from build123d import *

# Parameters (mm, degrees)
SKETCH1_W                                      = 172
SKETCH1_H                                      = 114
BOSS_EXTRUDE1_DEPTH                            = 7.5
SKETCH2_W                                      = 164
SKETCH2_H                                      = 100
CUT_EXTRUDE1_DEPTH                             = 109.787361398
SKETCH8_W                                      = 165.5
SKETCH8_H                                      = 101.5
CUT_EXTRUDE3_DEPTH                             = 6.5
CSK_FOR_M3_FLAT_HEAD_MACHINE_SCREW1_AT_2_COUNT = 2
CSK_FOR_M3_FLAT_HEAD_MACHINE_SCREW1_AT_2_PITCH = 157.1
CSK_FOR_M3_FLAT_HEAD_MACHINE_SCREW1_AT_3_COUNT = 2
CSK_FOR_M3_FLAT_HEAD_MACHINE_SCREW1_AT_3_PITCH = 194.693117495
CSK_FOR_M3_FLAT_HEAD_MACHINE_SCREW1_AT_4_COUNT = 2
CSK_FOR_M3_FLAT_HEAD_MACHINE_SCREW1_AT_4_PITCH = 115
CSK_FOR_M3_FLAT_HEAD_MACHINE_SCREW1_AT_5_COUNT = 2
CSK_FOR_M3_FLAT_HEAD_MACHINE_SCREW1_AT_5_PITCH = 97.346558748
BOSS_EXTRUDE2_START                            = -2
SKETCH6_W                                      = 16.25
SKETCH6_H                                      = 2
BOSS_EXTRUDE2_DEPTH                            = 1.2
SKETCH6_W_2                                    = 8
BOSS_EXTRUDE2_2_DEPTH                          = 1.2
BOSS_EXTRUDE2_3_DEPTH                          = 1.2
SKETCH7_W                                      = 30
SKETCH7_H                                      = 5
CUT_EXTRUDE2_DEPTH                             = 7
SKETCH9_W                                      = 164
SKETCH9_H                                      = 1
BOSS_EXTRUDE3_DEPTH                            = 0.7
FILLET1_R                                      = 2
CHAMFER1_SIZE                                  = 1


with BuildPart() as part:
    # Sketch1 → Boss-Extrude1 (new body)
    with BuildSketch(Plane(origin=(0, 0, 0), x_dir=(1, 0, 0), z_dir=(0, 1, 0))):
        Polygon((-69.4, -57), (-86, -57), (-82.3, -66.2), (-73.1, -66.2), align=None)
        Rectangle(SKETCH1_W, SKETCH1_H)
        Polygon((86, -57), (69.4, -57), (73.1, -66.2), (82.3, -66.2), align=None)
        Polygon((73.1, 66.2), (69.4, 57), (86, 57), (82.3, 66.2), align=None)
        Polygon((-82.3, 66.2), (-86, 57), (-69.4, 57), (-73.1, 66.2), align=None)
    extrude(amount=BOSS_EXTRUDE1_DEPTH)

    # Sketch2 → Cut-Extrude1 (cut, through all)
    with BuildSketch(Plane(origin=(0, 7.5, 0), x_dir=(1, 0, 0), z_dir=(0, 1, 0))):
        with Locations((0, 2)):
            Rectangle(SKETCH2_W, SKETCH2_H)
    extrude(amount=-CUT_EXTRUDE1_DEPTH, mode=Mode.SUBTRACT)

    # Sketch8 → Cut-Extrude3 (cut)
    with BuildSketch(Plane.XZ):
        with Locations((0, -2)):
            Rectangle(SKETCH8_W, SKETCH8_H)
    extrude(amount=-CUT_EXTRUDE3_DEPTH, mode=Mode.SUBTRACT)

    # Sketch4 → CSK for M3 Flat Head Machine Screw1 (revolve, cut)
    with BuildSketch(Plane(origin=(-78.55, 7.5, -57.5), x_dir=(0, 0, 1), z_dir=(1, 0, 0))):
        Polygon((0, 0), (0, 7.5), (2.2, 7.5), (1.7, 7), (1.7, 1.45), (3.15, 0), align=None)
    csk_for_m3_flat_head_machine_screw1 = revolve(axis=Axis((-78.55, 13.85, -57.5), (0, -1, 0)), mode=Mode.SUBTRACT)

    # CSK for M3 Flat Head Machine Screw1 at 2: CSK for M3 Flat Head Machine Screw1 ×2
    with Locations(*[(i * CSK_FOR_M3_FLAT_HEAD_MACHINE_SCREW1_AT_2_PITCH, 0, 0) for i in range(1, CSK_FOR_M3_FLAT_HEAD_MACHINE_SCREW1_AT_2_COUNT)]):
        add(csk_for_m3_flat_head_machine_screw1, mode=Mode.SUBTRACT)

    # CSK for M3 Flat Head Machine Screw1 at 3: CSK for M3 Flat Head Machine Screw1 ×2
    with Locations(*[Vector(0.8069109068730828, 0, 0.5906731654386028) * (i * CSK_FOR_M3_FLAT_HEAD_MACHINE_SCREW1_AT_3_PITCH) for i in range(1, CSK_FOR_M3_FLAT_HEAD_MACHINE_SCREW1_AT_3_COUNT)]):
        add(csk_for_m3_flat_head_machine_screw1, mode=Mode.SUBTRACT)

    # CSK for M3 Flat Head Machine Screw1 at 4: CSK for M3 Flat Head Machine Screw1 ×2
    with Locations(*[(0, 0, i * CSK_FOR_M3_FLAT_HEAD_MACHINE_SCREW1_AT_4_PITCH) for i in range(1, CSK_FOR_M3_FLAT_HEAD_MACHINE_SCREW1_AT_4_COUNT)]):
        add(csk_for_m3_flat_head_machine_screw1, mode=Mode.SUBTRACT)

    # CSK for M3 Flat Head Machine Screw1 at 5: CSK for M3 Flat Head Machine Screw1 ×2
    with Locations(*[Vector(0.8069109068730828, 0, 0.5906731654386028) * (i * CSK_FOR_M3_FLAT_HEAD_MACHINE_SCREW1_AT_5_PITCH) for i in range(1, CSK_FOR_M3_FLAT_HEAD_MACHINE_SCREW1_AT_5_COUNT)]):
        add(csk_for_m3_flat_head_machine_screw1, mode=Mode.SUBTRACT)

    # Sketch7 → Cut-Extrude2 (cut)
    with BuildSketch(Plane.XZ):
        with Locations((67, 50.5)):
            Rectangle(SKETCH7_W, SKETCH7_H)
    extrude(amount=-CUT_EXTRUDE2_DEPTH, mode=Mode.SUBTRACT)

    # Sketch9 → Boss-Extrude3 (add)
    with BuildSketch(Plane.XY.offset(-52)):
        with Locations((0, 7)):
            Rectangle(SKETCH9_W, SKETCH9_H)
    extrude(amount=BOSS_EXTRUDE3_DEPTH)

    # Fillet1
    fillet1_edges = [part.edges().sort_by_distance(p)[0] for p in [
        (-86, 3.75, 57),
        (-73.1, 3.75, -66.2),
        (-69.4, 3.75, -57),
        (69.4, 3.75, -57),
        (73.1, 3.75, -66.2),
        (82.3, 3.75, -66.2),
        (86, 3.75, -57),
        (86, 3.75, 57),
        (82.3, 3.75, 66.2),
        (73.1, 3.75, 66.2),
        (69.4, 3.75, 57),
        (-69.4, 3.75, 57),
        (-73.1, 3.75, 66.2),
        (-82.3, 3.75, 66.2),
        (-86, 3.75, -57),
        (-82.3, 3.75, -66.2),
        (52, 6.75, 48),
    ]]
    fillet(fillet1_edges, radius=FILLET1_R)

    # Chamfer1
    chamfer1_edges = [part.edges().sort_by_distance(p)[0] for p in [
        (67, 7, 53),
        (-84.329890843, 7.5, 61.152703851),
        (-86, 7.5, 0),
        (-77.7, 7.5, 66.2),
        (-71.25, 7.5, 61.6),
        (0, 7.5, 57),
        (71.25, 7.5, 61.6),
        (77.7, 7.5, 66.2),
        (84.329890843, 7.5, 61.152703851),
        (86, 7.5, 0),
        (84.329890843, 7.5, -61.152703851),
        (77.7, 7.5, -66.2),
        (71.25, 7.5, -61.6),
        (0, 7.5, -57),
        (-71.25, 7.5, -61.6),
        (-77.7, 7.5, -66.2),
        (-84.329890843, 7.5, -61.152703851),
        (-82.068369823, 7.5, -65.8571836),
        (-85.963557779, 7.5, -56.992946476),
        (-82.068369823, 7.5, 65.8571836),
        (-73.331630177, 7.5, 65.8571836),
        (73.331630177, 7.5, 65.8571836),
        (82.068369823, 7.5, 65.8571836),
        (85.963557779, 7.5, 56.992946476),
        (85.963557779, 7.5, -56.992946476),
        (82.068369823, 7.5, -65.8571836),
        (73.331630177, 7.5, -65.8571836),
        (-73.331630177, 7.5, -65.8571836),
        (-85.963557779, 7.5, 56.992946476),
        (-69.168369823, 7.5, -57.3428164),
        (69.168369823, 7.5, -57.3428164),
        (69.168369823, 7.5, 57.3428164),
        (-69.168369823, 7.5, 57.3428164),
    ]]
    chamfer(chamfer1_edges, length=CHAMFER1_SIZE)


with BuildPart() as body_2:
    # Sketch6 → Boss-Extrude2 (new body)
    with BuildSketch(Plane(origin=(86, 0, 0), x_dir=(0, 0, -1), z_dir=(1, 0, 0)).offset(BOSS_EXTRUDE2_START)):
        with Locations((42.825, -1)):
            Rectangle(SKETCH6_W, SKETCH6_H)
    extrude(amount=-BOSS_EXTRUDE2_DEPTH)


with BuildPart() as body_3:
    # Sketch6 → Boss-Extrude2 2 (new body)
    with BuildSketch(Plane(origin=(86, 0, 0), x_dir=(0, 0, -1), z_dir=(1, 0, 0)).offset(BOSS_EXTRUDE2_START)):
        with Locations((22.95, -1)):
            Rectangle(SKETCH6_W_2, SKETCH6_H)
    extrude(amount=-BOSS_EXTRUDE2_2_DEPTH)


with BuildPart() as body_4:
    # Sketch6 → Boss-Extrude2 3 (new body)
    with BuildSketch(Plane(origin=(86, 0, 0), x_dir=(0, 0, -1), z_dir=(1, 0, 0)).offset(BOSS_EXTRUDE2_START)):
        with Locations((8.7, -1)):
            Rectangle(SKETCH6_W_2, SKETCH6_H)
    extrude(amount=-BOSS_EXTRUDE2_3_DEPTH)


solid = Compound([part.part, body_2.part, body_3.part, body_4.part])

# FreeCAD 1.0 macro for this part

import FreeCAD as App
import Part
import Sketcher
from FreeCAD import Vector
Q = App.Units.Quantity


def edges_at(feature, points):
    """Names of the edges that pass closest to the given points."""
    edges = feature.Shape.Edges
    near = lambda p: min(range(len(edges)), key=lambda i: edges[i].distToShape(Part.Vertex(*p))[0])
    return sorted({f"Edge{near(p) + 1}" for p in points})


def add_polygon(sketch, points):
    """Adds a closed chain of lines whose ends are joined by coincident constraints."""
    first, n = sketch.GeometryCount, len(points)
    for a, b in zip(points, points[1:] + points[:1]):
        sketch.addGeometry(Part.LineSegment(App.Vector(*a, 0), App.Vector(*b, 0)), False)
    for i in range(n):
        sketch.addConstraint(Sketcher.Constraint("Coincident", first + i, 2, first + (i + 1) % n, 1))

doc = App.newDocument("Part")
body = doc.addObject("PartDesign::Body", "Body")

# Sketch on XZ plane
sketch1 = body.newObject("Sketcher::SketchObject", "Sketch")
sketch1.AttachmentSupport = (doc.getObject("XZ_Plane"), [""])
sketch1.MapMode = "FlatFace"
add_polygon(sketch1, [(-86, 57), (-82.3, 66.2), (-73.1, 66.2), (-69.4, 57), (69.4, 57), (73.1, 66.2), (82.3, 66.2), (86, 57), (86, -57), (82.3, -66.2), (73.1, -66.2), (69.4, -57), (-69.4, -57), (-73.1, -66.2), (-82.3, -66.2), (-86, -57)])  # lines 0-15
sketch1.addConstraint([
    Sketcher.Constraint("Horizontal", 1),
    Sketcher.Constraint("Horizontal", 3),
    Sketcher.Constraint("Horizontal", 5),
    Sketcher.Constraint("Vertical", 7),
    Sketcher.Constraint("Horizontal", 9),
    Sketcher.Constraint("Horizontal", 11),
    Sketcher.Constraint("Horizontal", 13),
    Sketcher.Constraint("Vertical", 15),
    Sketcher.Constraint("Symmetric", 0, 2, 8, 2, -1, 1),
    Sketcher.Constraint("Symmetric", 2, 2, 10, 2, -1, 1),
    Sketcher.Constraint("Symmetric", 4, 2, 12, 2, -1, 1),
    Sketcher.Constraint("Symmetric", 6, 2, 14, 2, -1, 1),
    Sketcher.Constraint("Symmetric", 1, 2, 4, 2, -2),
    Sketcher.Constraint("Parallel", 0, 4),
    Sketcher.Constraint("Parallel", 2, 6),
    Sketcher.Constraint("Parallel", 4, 8),
    Sketcher.Constraint("Parallel", 6, 10),
    Sketcher.Constraint("Parallel", 8, 12),
    Sketcher.Constraint("Parallel", 10, 14),
    Sketcher.Constraint("Horizontal", 3, 2, 6, 2),
    Sketcher.Constraint("Horizontal", 7, 2, 10, 2),
    Sketcher.Constraint("Vertical", 5, 2, 8, 2),
    Sketcher.Constraint("DistanceY", 7, 2, 7, 1, Q("114 mm")),
    Sketcher.Constraint("DistanceX", 1, 1, 1, 2, Q("9.2 mm")),
    Sketcher.Constraint("DistanceX", 3, 1, 3, 2, Q("138.8 mm")),
    Sketcher.Constraint("DistanceX", -1, 1, 6, 2, Q("86 mm")),
    Sketcher.Constraint("DistanceY", -1, 1, 0, 2, Q("66.2 mm")),
])
pad1 = body.newObject("PartDesign::Pad", "Pad")
pad1.Profile = sketch1
pad1.Length = 7.5
pad1.Reversed = True

# Sketch on XZ plane
sketch2 = body.newObject("Sketcher::SketchObject", "Sketch001")
sketch2.AttachmentSupport = (doc.getObject("XZ_Plane"), [""])
sketch2.MapMode = "FlatFace"
sketch2.AttachmentOffset = App.Placement(Vector(0, 0, -7.5), App.Rotation())
add_polygon(sketch2, [(-82, -52), (-82, 48), (82, 48), (82, -52)])  # lines 0-3
sketch2.addConstraint([
    Sketcher.Constraint("Vertical", 0),
    Sketcher.Constraint("Horizontal", 1),
    Sketcher.Constraint("Vertical", 2),
    Sketcher.Constraint("Horizontal", 3),
    Sketcher.Constraint("DistanceX", 1, 1, 1, 2, Q("164 mm")),
    Sketcher.Constraint("DistanceY", 0, 1, 0, 2, Q("100 mm")),
    Sketcher.Constraint("DistanceX", 0, 2, -1, 1, Q("82 mm")),
    Sketcher.Constraint("DistanceY", -1, 1, 0, 2, Q("48 mm")),
])
pocket1 = body.newObject("PartDesign::Pocket", "Pocket")
pocket1.Profile = sketch2
pocket1.Type = "ThroughAll"
pocket1.Reversed = True

# Sketch on XZ plane
sketch3 = body.newObject("Sketcher::SketchObject", "Sketch002")
sketch3.AttachmentSupport = (doc.getObject("XZ_Plane"), [""])
sketch3.MapMode = "FlatFace"
add_polygon(sketch3, [(-82.75, 48.75), (-82.75, -52.75), (82.75, -52.75), (82.75, 48.75)])  # lines 0-3
sketch3.addConstraint([
    Sketcher.Constraint("Vertical", 0),
    Sketcher.Constraint("Horizontal", 1),
    Sketcher.Constraint("Vertical", 2),
    Sketcher.Constraint("Horizontal", 3),
    Sketcher.Constraint("DistanceX", 1, 1, 1, 2, Q("165.5 mm")),
    Sketcher.Constraint("DistanceY", 0, 2, 0, 1, Q("101.5 mm")),
    Sketcher.Constraint("DistanceX", 0, 2, -1, 1, Q("82.75 mm")),
    Sketcher.Constraint("DistanceY", 0, 2, -1, 1, Q("52.75 mm")),
])
pocket2 = body.newObject("PartDesign::Pocket", "Pocket001")
pocket2.Profile = sketch3
pocket2.Length = 6.5

# Sketch on YZ plane
sketch4 = body.newObject("Sketcher::SketchObject", "Sketch003")
sketch4.AttachmentSupport = (doc.getObject("YZ_Plane"), [""])
sketch4.MapMode = "FlatFace"
sketch4.AttachmentOffset = App.Placement(Vector(0, 0, -78.55), App.Rotation())
add_polygon(sketch4, [(0, -57.5), (7.5, -57.5), (7.5, -54.35), (6.05, -55.8), (0.5, -55.8), (0, -55.3)])  # lines 0-5
sketch4.addGeometry(Part.LineSegment(Vector(7.5, -57.5, 0), Vector(0, -57.5, 0)), True)  # axis
sketch4.addConstraint([
    Sketcher.Constraint("Horizontal", 0),
    Sketcher.Constraint("Vertical", 1),
    Sketcher.Constraint("Horizontal", 3),
    Sketcher.Constraint("Vertical", 5),
    Sketcher.Constraint("Horizontal", 6),
    Sketcher.Constraint("Coincident", 6, 1, 0, 2),
    Sketcher.Constraint("PointOnObject", 4, 2, -2),
    Sketcher.Constraint("PointOnObject", 6, 2, -2),
    Sketcher.Constraint("Perpendicular", 2, 4),
    Sketcher.Constraint("Angle", 2, Q("-135 deg")),
    Sketcher.Constraint("DistanceX", 0, 1, 0, 2, Q("7.5 mm")),
    Sketcher.Constraint("DistanceY", 5, 2, 5, 1, Q("2.2 mm")),
    Sketcher.Constraint("DistanceX", 3, 2, 1, 2, Q("7 mm")),
    Sketcher.Constraint("DistanceX", 3, 2, 3, 1, Q("5.55 mm")),
    Sketcher.Constraint("DistanceY", 0, 2, -1, 1, Q("57.5 mm")),
])
groove = body.newObject("PartDesign::Groove", "Groove")
groove.Profile = sketch4
groove.ReferenceAxis = (sketch4, ["Axis0"])
groove.Angle = 360
doc.recompute()

linearpattern = body.newObject("PartDesign::LinearPattern", "LinearPattern")
linearpattern.Originals = [groove]
linearpattern.Direction = (doc.getObject("X_Axis"), [""])
linearpattern.Mode = "offset"
linearpattern.Offset = 157.1
linearpattern.Occurrences = 2
body.Tip = linearpattern
doc.recompute()

datumline = body.newObject("PartDesign::Line", "DatumLine")
datumline.Placement = App.Placement(Vector(0, 0, 0), App.Rotation(Vector(0, 0, 1), Vector(0.806910907, 0, 0.590673165)))
linearpattern2 = body.newObject("PartDesign::LinearPattern", "LinearPattern001")
linearpattern2.Originals = [groove]
linearpattern2.Direction = (datumline, [""])
linearpattern2.Mode = "offset"
linearpattern2.Offset = 194.693117
linearpattern2.Occurrences = 2
body.Tip = linearpattern2
doc.recompute()

linearpattern3 = body.newObject("PartDesign::LinearPattern", "LinearPattern002")
linearpattern3.Originals = [groove]
linearpattern3.Direction = (doc.getObject("Z_Axis"), [""])
linearpattern3.Mode = "offset"
linearpattern3.Offset = 115
linearpattern3.Occurrences = 2
body.Tip = linearpattern3
doc.recompute()

datumline2 = body.newObject("PartDesign::Line", "DatumLine001")
datumline2.Placement = App.Placement(Vector(0, 0, 0), App.Rotation(Vector(0, 0, 1), Vector(0.806910907, 0, 0.590673165)))
linearpattern4 = body.newObject("PartDesign::LinearPattern", "LinearPattern003")
linearpattern4.Originals = [groove]
linearpattern4.Direction = (datumline2, [""])
linearpattern4.Mode = "offset"
linearpattern4.Offset = 97.346559
linearpattern4.Occurrences = 2
body.Tip = linearpattern4

# Sketch on XZ plane
sketch5 = body.newObject("Sketcher::SketchObject", "Sketch004")
sketch5.AttachmentSupport = (doc.getObject("XZ_Plane"), [""])
sketch5.MapMode = "FlatFace"
add_polygon(sketch5, [(52, 53), (52, 48), (82, 48), (82, 53)])  # lines 0-3
sketch5.addConstraint([
    Sketcher.Constraint("Vertical", 0),
    Sketcher.Constraint("Horizontal", 1),
    Sketcher.Constraint("Vertical", 2),
    Sketcher.Constraint("Horizontal", 3),
    Sketcher.Constraint("DistanceX", 1, 1, 1, 2, Q("30 mm")),
    Sketcher.Constraint("DistanceY", 0, 2, 0, 1, Q("5 mm")),
    Sketcher.Constraint("DistanceX", -1, 1, 0, 2, Q("52 mm")),
    Sketcher.Constraint("DistanceY", -1, 1, 0, 2, Q("48 mm")),
])
pocket3 = body.newObject("PartDesign::Pocket", "Pocket002")
pocket3.Profile = sketch5
pocket3.Length = 7

# Sketch on XY plane
sketch6 = body.newObject("Sketcher::SketchObject", "Sketch005")
sketch6.AttachmentSupport = (doc.getObject("XY_Plane"), [""])
sketch6.MapMode = "FlatFace"
sketch6.AttachmentOffset = App.Placement(Vector(0, 0, -52), App.Rotation())
add_polygon(sketch6, [(-82, 7.5), (-82, 6.5), (82, 6.5), (82, 7.5)])  # lines 0-3
sketch6.addConstraint([
    Sketcher.Constraint("Vertical", 0),
    Sketcher.Constraint("Horizontal", 1),
    Sketcher.Constraint("Vertical", 2),
    Sketcher.Constraint("Horizontal", 3),
    Sketcher.Constraint("DistanceX", 1, 1, 1, 2, Q("164 mm")),
    Sketcher.Constraint("DistanceY", 0, 2, 0, 1, Q("1 mm")),
    Sketcher.Constraint("DistanceX", 0, 2, -1, 1, Q("82 mm")),
    Sketcher.Constraint("DistanceY", -1, 1, 0, 2, Q("6.5 mm")),
])
pad2 = body.newObject("PartDesign::Pad", "Pad001")
pad2.Profile = sketch6
pad2.Length = 0.7
doc.recompute()

fillet = body.newObject("PartDesign::Fillet", "Fillet")
fillet.Base = (pad2, edges_at(pad2, [
    (-86, 3.75, 57),
    (-73.1, 3.75, -66.2),
    (-69.4, 3.75, -57),
    (69.4, 3.75, -57),
    (73.1, 3.75, -66.2),
    (82.3, 3.75, -66.2),
    (86, 3.75, -57),
    (86, 3.75, 57),
    (82.3, 3.75, 66.2),
    (73.1, 3.75, 66.2),
    (69.4, 3.75, 57),
    (-69.4, 3.75, 57),
    (-73.1, 3.75, 66.2),
    (-82.3, 3.75, 66.2),
    (-86, 3.75, -57),
    (-82.3, 3.75, -66.2),
    (52, 6.75, 48),
]))
fillet.Radius = 2
doc.recompute()

chamfer = body.newObject("PartDesign::Chamfer", "Chamfer")
chamfer.Base = (fillet, edges_at(fillet, [
    (67, 7, 53),
    (-84.33, 7.5, 61.153),
    (-86, 7.5, 0),
    (-77.7, 7.5, 66.2),
    (-71.25, 7.5, 61.6),
    (0, 7.5, 57),
    (71.25, 7.5, 61.6),
    (77.7, 7.5, 66.2),
    (84.33, 7.5, 61.153),
    (86, 7.5, 0),
    (84.33, 7.5, -61.153),
    (77.7, 7.5, -66.2),
    (71.25, 7.5, -61.6),
    (0, 7.5, -57),
    (-71.25, 7.5, -61.6),
    (-77.7, 7.5, -66.2),
    (-84.33, 7.5, -61.153),
    (-82.068, 7.5, -65.857),
    (-85.964, 7.5, -56.993),
    (-82.068, 7.5, 65.857),
    (-73.332, 7.5, 65.857),
    (73.332, 7.5, 65.857),
    (82.068, 7.5, 65.857),
    (85.964, 7.5, 56.993),
    (85.964, 7.5, -56.993),
    (82.068, 7.5, -65.857),
    (73.332, 7.5, -65.857),
    (-73.332, 7.5, -65.857),
    (-85.964, 7.5, 56.993),
    (-69.168, 7.5, -57.343),
    (69.168, 7.5, -57.343),
    (69.168, 7.5, 57.343),
    (-69.168, 7.5, 57.343),
]))
chamfer.Size = 1
body2 = doc.addObject("PartDesign::Body", "Body001")

# Sketch on YZ plane
sketch7 = body2.newObject("Sketcher::SketchObject", "Sketch006")
sketch7.AttachmentSupport = (doc.getObject("YZ_Plane001"), [""])
sketch7.MapMode = "FlatFace"
sketch7.AttachmentOffset = App.Placement(Vector(0, 0, 84), App.Rotation())
add_polygon(sketch7, [(0, -34.7), (-2, -34.7), (-2, -50.95), (0, -50.95)])  # lines 0-3
sketch7.addConstraint([
    Sketcher.Constraint("Horizontal", 0),
    Sketcher.Constraint("Vertical", 1),
    Sketcher.Constraint("Horizontal", 2),
    Sketcher.Constraint("Vertical", 3),
    Sketcher.Constraint("PointOnObject", 2, 2, -2),
    Sketcher.Constraint("DistanceX", 0, 2, 0, 1, Q("2 mm")),
    Sketcher.Constraint("DistanceY", 1, 2, 1, 1, Q("16.25 mm")),
    Sketcher.Constraint("DistanceY", 0, 2, -1, 1, Q("34.7 mm")),
])
pad3 = body2.newObject("PartDesign::Pad", "Pad002")
pad3.Profile = sketch7
pad3.Length = 1.2
pad3.Reversed = True
body3 = doc.addObject("PartDesign::Body", "Body002")

# Sketch on YZ plane
sketch8 = body3.newObject("Sketcher::SketchObject", "Sketch007")
sketch8.AttachmentSupport = (doc.getObject("YZ_Plane002"), [""])
sketch8.MapMode = "FlatFace"
sketch8.AttachmentOffset = App.Placement(Vector(0, 0, 84), App.Rotation())
add_polygon(sketch8, [(0, -18.95), (-2, -18.95), (-2, -26.95), (0, -26.95)])  # lines 0-3
sketch8.addConstraint([
    Sketcher.Constraint("Horizontal", 0),
    Sketcher.Constraint("Vertical", 1),
    Sketcher.Constraint("Horizontal", 2),
    Sketcher.Constraint("Vertical", 3),
    Sketcher.Constraint("PointOnObject", 2, 2, -2),
    Sketcher.Constraint("DistanceX", 0, 2, 0, 1, Q("2 mm")),
    Sketcher.Constraint("DistanceY", 1, 2, 1, 1, Q("8 mm")),
    Sketcher.Constraint("DistanceY", 0, 2, -1, 1, Q("18.95 mm")),
])
pad4 = body3.newObject("PartDesign::Pad", "Pad003")
pad4.Profile = sketch8
pad4.Length = 1.2
pad4.Reversed = True
body4 = doc.addObject("PartDesign::Body", "Body003")

# Sketch on YZ plane
sketch9 = body4.newObject("Sketcher::SketchObject", "Sketch008")
sketch9.AttachmentSupport = (doc.getObject("YZ_Plane003"), [""])
sketch9.MapMode = "FlatFace"
sketch9.AttachmentOffset = App.Placement(Vector(0, 0, 84), App.Rotation())
add_polygon(sketch9, [(0, -4.7), (-2, -4.7), (-2, -12.7), (0, -12.7)])  # lines 0-3
sketch9.addConstraint([
    Sketcher.Constraint("Horizontal", 0),
    Sketcher.Constraint("Vertical", 1),
    Sketcher.Constraint("Horizontal", 2),
    Sketcher.Constraint("Vertical", 3),
    Sketcher.Constraint("PointOnObject", 2, 2, -2),
    Sketcher.Constraint("DistanceX", 0, 2, 0, 1, Q("2 mm")),
    Sketcher.Constraint("DistanceY", 1, 2, 1, 1, Q("8 mm")),
    Sketcher.Constraint("DistanceY", 0, 2, -1, 1, Q("4.7 mm")),
])
pad5 = body4.newObject("PartDesign::Pad", "Pad004")
pad5.Profile = sketch9
pad5.Length = 1.2
pad5.Reversed = True

doc.recompute()
